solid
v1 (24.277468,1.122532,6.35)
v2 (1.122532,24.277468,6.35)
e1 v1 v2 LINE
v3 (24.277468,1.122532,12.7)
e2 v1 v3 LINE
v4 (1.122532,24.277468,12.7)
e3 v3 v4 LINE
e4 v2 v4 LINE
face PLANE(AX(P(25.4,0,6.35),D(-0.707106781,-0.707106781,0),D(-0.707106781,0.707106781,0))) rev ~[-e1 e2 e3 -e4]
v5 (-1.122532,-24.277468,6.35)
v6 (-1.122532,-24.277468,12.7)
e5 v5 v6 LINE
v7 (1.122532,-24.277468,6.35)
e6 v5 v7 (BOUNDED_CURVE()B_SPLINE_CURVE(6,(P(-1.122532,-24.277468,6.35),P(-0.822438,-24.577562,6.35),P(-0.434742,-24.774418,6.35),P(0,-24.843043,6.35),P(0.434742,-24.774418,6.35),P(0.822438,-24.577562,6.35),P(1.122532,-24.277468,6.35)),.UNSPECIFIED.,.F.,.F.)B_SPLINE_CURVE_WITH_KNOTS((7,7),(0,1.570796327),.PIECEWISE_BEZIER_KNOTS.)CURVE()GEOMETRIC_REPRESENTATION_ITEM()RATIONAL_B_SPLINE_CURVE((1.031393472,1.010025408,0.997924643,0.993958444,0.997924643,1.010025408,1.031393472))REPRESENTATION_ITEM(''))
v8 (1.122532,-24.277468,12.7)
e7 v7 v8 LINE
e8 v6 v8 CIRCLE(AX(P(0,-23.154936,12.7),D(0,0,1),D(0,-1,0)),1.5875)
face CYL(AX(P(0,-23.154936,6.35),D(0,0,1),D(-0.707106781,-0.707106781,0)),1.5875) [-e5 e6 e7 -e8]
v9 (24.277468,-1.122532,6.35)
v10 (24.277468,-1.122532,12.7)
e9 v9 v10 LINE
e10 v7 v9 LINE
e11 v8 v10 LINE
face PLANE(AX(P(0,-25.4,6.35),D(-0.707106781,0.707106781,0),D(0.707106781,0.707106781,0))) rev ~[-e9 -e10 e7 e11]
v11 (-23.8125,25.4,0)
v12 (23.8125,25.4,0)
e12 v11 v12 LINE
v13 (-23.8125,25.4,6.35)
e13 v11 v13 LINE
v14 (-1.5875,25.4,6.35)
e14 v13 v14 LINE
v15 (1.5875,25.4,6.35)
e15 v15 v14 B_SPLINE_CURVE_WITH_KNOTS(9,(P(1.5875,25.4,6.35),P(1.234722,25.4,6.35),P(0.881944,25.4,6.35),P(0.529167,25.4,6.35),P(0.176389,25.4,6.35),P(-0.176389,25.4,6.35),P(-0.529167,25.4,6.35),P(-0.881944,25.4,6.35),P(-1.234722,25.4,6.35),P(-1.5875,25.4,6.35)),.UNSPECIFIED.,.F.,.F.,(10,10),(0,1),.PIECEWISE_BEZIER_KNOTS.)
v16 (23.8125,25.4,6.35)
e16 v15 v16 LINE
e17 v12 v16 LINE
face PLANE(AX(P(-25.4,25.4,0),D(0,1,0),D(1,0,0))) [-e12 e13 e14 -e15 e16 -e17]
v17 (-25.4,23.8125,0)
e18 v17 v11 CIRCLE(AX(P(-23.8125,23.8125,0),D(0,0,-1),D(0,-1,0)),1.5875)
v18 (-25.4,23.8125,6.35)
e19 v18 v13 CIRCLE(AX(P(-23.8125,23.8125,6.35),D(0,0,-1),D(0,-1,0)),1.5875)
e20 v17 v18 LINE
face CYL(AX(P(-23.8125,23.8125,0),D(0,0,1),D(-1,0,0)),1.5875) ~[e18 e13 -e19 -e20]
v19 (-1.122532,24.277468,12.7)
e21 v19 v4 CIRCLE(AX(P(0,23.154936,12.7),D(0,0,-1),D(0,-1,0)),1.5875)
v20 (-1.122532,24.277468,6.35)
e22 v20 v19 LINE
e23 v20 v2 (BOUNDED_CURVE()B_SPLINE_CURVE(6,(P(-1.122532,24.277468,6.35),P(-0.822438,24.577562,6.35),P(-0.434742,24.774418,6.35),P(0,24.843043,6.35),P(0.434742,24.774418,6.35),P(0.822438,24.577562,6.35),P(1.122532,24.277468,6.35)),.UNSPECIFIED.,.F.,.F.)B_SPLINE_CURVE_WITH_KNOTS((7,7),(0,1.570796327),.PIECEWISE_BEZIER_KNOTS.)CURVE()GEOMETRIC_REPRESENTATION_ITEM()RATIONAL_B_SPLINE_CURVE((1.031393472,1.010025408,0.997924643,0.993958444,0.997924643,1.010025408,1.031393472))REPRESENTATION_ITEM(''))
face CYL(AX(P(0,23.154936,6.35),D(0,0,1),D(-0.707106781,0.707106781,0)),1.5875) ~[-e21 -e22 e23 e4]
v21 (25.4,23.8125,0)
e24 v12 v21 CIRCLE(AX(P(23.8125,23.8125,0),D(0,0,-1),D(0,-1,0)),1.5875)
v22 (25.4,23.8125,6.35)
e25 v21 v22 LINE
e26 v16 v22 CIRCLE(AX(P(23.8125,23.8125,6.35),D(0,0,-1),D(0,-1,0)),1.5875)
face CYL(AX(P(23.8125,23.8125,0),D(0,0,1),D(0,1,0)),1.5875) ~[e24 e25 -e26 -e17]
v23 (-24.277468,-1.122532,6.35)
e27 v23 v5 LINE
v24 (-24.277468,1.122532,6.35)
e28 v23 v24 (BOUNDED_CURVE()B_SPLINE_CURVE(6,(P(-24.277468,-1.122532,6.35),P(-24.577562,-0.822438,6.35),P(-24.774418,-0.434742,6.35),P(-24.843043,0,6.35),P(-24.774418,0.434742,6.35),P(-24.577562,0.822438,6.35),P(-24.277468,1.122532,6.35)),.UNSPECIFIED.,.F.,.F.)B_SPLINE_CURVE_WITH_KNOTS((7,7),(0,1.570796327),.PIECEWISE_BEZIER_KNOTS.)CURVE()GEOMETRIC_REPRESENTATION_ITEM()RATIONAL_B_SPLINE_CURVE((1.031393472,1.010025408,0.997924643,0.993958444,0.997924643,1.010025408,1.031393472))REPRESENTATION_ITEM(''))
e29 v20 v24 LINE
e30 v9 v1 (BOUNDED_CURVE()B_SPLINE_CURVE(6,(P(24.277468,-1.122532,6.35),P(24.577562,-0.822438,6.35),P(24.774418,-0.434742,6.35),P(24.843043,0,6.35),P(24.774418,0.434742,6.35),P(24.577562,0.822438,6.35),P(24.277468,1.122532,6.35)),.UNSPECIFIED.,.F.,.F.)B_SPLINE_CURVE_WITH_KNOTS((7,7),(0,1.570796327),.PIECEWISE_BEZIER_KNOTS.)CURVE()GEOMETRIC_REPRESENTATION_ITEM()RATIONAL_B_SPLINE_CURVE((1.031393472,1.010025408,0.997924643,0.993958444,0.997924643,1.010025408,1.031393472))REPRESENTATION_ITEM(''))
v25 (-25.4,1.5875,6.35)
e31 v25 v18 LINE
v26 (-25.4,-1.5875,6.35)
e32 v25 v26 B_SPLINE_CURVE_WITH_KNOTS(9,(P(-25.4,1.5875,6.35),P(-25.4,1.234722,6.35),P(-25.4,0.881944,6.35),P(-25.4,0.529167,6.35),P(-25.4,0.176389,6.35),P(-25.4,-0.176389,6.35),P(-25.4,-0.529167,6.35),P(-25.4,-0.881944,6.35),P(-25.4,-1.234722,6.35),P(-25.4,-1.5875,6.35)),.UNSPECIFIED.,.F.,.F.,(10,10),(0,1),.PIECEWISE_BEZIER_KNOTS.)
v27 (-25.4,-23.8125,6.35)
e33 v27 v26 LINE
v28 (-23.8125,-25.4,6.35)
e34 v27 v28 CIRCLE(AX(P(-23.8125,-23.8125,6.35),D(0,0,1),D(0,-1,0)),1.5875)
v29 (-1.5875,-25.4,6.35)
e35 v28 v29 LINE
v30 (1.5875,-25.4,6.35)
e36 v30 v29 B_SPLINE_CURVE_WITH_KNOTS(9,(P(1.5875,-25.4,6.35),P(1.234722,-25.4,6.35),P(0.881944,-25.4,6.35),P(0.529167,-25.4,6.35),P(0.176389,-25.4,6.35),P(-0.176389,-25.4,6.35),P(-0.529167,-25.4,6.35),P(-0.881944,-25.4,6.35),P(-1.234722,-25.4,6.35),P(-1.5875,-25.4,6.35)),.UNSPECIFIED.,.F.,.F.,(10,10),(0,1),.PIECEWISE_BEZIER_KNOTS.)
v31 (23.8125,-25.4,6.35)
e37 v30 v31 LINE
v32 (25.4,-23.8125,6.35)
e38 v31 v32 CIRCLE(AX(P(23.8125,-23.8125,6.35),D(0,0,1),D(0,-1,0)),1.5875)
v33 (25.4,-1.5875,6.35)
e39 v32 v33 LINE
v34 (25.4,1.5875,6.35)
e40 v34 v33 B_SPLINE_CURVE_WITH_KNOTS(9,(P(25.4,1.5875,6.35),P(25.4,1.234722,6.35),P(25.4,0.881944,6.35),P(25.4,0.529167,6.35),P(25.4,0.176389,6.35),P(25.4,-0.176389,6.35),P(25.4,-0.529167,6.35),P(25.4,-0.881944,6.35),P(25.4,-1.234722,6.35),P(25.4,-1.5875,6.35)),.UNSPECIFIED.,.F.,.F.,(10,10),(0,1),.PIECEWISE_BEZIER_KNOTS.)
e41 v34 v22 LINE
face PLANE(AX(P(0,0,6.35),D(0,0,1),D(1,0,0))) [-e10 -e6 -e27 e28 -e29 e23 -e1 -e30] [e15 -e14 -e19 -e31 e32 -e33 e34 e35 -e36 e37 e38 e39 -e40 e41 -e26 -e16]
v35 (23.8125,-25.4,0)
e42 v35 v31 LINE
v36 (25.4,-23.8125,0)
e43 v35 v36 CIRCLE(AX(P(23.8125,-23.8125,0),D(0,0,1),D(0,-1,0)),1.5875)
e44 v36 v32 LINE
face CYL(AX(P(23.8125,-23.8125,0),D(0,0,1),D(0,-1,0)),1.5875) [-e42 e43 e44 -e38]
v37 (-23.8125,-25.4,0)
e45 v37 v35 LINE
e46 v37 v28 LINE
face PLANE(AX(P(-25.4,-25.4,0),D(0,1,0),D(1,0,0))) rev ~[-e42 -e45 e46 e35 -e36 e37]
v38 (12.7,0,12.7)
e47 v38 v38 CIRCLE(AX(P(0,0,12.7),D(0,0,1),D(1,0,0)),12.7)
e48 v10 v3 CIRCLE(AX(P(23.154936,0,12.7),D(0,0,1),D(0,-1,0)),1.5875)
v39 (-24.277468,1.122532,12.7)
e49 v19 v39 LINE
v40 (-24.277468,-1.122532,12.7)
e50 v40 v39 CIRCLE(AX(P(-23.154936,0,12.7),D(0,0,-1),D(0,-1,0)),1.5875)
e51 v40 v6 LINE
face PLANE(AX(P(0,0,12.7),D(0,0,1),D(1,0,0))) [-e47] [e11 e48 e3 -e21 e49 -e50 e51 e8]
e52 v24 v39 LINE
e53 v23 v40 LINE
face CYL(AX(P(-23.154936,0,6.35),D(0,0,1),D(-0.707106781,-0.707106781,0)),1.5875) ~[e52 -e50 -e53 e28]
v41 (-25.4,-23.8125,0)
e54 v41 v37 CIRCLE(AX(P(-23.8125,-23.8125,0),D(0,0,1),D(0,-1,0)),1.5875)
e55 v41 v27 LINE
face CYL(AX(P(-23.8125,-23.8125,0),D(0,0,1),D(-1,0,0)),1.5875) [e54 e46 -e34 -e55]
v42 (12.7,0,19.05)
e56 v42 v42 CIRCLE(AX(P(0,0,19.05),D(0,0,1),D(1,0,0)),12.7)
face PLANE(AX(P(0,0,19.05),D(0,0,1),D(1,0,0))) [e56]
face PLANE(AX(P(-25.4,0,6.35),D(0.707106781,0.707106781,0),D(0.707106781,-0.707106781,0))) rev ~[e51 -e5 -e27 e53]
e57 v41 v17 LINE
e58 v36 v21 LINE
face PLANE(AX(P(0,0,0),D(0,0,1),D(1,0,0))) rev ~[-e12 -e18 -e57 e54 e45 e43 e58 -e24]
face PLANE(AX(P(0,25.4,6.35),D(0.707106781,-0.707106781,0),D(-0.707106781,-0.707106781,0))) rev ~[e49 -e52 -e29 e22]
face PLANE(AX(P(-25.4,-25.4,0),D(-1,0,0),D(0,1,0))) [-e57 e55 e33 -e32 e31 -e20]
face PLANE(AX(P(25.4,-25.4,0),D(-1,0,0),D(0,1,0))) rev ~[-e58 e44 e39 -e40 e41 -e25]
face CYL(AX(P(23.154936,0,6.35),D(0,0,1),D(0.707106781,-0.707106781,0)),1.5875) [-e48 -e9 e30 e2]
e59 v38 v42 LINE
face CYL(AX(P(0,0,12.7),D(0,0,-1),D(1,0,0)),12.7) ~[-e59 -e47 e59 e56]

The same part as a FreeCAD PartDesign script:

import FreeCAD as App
import Part
import Sketcher
Q = App.Units.Quantity


def edges_at(feature, points):
    """Names of the edges that pass closest to the given points."""
    edges = feature.Shape.Edges
    near = lambda p: min(range(len(edges)), key=lambda i: edges[i].distToShape(Part.Vertex(*p))[0])
    return sorted({f"Edge{near(p) + 1}" for p in points})


def add_polygon(sketch, points):
    """Adds a closed chain of lines whose ends are joined by coincident constraints."""
    first, n = sketch.GeometryCount, len(points)
    for a, b in zip(points, points[1:] + points[:1]):
        sketch.addGeometry(Part.LineSegment(App.Vector(*a, 0), App.Vector(*b, 0)), False)
    for i in range(n):
        sketch.addConstraint(Sketcher.Constraint("Coincident", first + i, 2, first + (i + 1) % n, 1))

doc = App.newDocument("Part")
params = doc.addObject("Spreadsheet::Sheet", "Params")
for row, (alias, value) in enumerate([
    ("sketch1_width", "2 in"),
    ("pad1_length", "0.25 in"),
    ("pad2_length", "0.25 in"),
    ("sketch3_diameter", "1 in"),
    ("pad3_length", "0.25 in"),
    ("fillet_radius", "0.0625 in"),
], start=1):
    params.set(f"A{row}", alias)
    params.set(f"B{row}", "=" + value)
    params.setAlias(f"B{row}", alias)

body = doc.addObject("PartDesign::Body", "Body")

sketch1 = doc.addObject("Sketcher::SketchObject", "Sketch")
body.addObject(sketch1)
sketch1.AttachmentSupport = (doc.XY_Plane, [""])
sketch1.MapMode = "FlatFace"
add_polygon(sketch1, [(-25, 25), (-25, -25), (25, -25), (25, 25)])
sketch1.addConstraint(Sketcher.Constraint("Vertical", 0))
sketch1.addConstraint(Sketcher.Constraint("Horizontal", 1))
sketch1.addConstraint(Sketcher.Constraint("Vertical", 2))
sketch1.addConstraint(Sketcher.Constraint("Horizontal", 3))
sketch1.addConstraint(Sketcher.Constraint("Symmetric", 0, 2, 2, 2, -1, 1))
sketch1.addConstraint(Sketcher.Constraint("Equal", 3, 0))
sketch1.addConstraint(Sketcher.Constraint("DistanceX", 1, 1, 1, 2, Q("2 in")))
sketch1.setExpression("Constraints[10]", "Params.sketch1_width")
pad1 = doc.addObject("PartDesign::Pad", "Pad")
body.addObject(pad1)
pad1.Profile = sketch1
pad1.setExpression("Length", "Params.pad1_length")

sketch2 = doc.addObject("Sketcher::SketchObject", "Sketch001")
body.addObject(sketch2)
sketch2.AttachmentSupport = (doc.XY_Plane, [""])
sketch2.MapMode = "FlatFace"
sketch2.AttachmentOffset = App.Placement(App.Vector(0, 0, 0.25 * 25.4), App.Rotation())
add_polygon(sketch2, [(0, -25), (25, 0), (0, 25), (-25, 0)])
sketch2.addConstraint(Sketcher.Constraint("Symmetric", 0, 2, 2, 2, -1, 1))
sketch2.addConstraint(Sketcher.Constraint("Symmetric", 1, 2, 3, 2, -1, 1))
sketch2.addConstraint(Sketcher.Constraint("PointOnObject", 0, 2, -1))
sketch2.addConstraint(Sketcher.Constraint("PointOnObject", 1, 2, -2))
sketch2.addConstraint(Sketcher.Constraint("Perpendicular", 0, 1))
sketch2.addConstraint(Sketcher.Constraint("DistanceX", -1, 1, 0, 2, Q("1 in")))
pad2 = doc.addObject("PartDesign::Pad", "Pad001")
body.addObject(pad2)
pad2.Profile = sketch2
pad2.setExpression("Length", "Params.pad2_length")

sketch3 = doc.addObject("Sketcher::SketchObject", "Sketch002")
body.addObject(sketch3)
sketch3.AttachmentSupport = (doc.XY_Plane, [""])
sketch3.MapMode = "FlatFace"
sketch3.AttachmentOffset = App.Placement(App.Vector(0, 0, 0.5 * 25.4), App.Rotation())
sketch3.addGeometry(Part.Circle(App.Vector(0, 0, 0), App.Vector(0, 0, 1), 13), False)
sketch3.addConstraint(Sketcher.Constraint("Coincident", 0, 3, -1, 1))
sketch3.addConstraint(Sketcher.Constraint("Diameter", 0, Q("1 in")))
sketch3.setExpression("Constraints[1]", "Params.sketch3_diameter")
pad3 = doc.addObject("PartDesign::Pad", "Pad002")
body.addObject(pad3)
pad3.Profile = sketch3
pad3.setExpression("Length", "Params.pad3_length")
doc.recompute()

fillet = doc.addObject("PartDesign::Fillet", "Fillet")
body.addObject(fillet)
fillet.Base = (pad3, edges_at(pad3, [
    (-25.4, 0, 9.525),
    (25.4, 0, 9.525),
    (0, 25.4, 9.525),
    (0, -25.4, 9.525),
    (-25.4, 25.4, 3.175),
    (-25.4, -25.4, 3.175),
    (25.4, -25.4, 3.175),
    (25.4, 25.4, 3.175),
]))
fillet.setExpression("Radius", "Params.fillet_radius")

doc.recompute()
